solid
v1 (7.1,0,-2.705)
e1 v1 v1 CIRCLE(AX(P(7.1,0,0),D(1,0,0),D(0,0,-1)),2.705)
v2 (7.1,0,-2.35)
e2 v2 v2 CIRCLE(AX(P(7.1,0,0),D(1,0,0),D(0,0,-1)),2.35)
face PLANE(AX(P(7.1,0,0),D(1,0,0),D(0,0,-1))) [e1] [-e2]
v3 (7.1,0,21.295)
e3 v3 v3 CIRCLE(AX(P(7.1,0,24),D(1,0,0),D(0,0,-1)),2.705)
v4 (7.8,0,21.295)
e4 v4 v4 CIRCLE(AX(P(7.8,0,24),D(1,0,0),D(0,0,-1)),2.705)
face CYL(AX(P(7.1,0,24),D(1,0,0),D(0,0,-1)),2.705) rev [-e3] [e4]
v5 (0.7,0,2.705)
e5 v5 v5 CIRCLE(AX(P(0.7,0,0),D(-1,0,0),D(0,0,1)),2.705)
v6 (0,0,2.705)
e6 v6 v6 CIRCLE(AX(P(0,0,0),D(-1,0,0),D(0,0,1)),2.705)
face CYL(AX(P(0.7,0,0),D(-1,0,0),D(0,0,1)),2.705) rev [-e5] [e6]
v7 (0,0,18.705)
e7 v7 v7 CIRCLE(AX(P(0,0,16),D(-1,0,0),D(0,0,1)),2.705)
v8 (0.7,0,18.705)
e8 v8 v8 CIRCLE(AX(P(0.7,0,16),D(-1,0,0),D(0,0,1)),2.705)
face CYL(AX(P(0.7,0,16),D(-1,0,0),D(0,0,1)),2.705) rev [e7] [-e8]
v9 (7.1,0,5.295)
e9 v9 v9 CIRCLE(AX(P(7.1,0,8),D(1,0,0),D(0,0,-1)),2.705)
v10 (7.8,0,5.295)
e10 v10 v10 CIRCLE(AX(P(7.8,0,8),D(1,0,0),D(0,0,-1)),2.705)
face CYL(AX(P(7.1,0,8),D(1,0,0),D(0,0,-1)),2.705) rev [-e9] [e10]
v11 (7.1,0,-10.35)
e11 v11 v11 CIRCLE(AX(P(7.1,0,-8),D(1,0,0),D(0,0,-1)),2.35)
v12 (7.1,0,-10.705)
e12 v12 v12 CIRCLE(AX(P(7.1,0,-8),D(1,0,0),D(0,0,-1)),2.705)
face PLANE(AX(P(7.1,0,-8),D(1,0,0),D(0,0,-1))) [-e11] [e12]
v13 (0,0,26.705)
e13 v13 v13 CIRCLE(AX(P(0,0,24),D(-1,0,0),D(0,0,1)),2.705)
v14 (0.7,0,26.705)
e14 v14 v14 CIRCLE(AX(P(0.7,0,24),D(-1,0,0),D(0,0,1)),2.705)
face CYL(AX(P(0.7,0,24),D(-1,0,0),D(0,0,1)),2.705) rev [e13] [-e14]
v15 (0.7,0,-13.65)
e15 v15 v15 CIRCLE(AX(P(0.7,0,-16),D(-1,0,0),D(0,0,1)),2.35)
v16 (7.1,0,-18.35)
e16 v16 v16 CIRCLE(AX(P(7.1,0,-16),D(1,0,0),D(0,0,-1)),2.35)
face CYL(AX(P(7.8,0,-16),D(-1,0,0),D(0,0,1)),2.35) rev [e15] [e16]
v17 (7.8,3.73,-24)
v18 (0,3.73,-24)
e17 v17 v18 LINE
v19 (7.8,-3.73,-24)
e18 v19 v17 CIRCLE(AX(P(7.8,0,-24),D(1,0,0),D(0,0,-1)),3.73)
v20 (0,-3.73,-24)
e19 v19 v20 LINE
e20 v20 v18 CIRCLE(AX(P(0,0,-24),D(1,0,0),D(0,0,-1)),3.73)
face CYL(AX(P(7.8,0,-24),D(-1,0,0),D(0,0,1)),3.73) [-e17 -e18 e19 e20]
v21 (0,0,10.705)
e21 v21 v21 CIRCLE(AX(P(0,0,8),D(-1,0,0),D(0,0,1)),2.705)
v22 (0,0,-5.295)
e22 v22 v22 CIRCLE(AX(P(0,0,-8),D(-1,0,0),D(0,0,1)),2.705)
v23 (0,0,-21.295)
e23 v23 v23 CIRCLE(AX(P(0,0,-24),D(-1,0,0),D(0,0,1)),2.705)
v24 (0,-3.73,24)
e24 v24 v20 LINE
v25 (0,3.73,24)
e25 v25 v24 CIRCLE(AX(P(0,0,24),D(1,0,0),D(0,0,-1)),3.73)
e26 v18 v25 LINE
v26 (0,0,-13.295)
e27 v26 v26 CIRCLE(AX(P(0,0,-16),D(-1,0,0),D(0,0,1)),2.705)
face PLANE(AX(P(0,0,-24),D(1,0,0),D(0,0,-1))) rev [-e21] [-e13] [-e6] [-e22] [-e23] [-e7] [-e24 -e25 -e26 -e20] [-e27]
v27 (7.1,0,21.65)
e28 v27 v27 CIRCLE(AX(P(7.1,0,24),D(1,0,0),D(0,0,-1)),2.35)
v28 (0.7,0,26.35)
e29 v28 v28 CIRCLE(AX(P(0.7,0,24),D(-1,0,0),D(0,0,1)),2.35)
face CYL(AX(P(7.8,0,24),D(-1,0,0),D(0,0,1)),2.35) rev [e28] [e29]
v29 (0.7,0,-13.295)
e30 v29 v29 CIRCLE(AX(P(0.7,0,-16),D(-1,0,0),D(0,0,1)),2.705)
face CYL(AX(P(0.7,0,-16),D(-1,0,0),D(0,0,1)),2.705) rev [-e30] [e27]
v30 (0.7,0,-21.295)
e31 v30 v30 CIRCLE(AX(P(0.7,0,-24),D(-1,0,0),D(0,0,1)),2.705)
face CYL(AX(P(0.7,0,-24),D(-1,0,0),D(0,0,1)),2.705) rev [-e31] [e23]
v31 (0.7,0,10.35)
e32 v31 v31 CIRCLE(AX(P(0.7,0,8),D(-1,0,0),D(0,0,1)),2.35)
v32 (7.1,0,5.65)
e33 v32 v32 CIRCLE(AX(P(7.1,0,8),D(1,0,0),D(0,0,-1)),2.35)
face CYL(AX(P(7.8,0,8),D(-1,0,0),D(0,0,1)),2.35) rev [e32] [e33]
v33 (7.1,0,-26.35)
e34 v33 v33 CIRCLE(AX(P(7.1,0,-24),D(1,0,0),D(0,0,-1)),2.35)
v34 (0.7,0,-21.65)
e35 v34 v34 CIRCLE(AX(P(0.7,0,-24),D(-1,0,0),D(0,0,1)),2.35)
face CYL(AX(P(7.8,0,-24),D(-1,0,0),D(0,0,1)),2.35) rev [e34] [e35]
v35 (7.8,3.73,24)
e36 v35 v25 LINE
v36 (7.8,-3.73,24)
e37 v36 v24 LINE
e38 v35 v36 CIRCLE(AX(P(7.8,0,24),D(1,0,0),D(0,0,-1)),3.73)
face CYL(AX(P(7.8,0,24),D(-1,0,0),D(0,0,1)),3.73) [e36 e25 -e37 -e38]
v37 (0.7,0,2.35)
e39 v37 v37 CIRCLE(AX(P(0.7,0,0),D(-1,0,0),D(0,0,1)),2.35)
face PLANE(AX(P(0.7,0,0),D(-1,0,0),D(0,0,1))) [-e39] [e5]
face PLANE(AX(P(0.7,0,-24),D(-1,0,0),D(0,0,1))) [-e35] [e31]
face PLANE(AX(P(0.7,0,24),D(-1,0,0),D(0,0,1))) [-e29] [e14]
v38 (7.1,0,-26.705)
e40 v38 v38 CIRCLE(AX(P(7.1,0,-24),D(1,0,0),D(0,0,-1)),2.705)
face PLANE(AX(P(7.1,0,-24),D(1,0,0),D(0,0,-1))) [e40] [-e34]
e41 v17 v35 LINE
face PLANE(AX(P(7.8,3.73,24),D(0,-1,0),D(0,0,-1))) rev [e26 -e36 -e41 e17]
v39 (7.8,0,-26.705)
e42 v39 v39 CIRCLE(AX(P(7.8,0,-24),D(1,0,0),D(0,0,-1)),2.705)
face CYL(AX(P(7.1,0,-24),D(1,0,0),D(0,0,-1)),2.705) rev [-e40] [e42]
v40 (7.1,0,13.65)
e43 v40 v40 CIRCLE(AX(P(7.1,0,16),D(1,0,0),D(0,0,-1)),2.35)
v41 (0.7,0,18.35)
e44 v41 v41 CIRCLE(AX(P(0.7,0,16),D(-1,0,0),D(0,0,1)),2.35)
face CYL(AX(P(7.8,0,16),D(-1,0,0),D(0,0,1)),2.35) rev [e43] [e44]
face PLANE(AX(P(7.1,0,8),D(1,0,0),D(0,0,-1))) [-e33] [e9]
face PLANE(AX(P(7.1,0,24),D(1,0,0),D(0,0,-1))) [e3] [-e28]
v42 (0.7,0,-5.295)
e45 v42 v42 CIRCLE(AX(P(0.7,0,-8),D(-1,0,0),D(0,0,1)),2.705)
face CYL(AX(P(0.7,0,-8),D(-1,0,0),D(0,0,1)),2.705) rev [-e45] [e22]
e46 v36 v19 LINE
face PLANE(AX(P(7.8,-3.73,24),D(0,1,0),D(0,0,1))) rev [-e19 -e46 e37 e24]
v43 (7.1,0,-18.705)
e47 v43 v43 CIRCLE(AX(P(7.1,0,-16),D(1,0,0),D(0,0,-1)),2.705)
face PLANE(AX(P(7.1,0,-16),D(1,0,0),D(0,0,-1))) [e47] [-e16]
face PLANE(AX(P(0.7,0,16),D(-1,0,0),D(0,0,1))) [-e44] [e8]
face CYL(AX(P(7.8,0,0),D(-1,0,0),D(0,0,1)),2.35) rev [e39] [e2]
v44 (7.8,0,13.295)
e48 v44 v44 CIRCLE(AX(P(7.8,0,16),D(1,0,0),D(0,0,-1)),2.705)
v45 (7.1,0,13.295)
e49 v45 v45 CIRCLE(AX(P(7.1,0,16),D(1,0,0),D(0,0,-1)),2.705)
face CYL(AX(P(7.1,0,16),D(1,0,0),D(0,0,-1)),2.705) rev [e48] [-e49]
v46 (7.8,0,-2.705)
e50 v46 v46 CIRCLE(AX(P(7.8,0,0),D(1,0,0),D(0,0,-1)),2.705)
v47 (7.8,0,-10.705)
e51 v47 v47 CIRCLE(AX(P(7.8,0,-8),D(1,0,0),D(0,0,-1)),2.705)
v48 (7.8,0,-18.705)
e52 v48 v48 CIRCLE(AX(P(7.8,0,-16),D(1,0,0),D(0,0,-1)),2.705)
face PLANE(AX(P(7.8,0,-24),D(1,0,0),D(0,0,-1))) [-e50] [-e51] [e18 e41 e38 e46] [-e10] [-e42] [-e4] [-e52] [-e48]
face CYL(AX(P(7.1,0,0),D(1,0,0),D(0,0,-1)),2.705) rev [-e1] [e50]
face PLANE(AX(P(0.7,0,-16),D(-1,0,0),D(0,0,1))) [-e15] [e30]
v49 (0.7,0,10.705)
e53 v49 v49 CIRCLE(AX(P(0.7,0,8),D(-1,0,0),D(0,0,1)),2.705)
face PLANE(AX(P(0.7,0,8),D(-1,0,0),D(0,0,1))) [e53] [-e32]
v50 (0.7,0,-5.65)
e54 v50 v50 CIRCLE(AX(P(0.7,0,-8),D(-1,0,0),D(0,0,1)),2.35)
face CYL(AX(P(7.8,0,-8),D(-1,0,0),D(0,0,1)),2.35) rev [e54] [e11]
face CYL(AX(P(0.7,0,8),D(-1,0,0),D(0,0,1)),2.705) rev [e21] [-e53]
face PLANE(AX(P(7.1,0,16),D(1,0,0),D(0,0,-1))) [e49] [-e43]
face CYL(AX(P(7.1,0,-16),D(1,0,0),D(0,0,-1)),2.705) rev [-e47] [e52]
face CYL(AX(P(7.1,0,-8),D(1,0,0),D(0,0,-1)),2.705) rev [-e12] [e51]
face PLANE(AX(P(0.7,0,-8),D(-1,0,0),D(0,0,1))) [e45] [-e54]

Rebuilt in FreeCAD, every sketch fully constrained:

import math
import FreeCAD as App
import Part
import Sketcher

V = App.Vector

doc = App.newDocument("Part")
body = doc.addObject("PartDesign::Body", "Body")

sketch1 = body.newObject("Sketcher::SketchObject", "Sketch")
sketch1.AttachmentSupport = (doc.getObject("YZ_Plane"), [""])
sketch1.MapMode = "FlatFace"
sketch1.addGeometry([
    Part.LineSegment(V(-3.7, 24, 0), V(-3.7, -24, 0)),
    Part.ArcOfCircle(Part.Circle(V(0, -24, 0), V(0, 0, 1), 3.7), math.radians(180), math.radians(360)),
    Part.LineSegment(V(3.7, -24, 0), V(3.7, 24, 0)),
    Part.ArcOfCircle(Part.Circle(V(0, 24, 0), V(0, 0, 1), 3.7), math.radians(0), math.radians(180)),
    Part.Circle(V(0, 24, 0), V(0, 0, 1), 2.4),
    Part.Circle(V(0, 16, 0), V(0, 0, 1), 2.4),
    Part.Circle(V(0, 8, 0), V(0, 0, 1), 2.4),
    Part.Circle(V(0, 0, 0), V(0, 0, 1), 2.4),
    Part.Circle(V(0, -8, 0), V(0, 0, 1), 2.4),
    Part.Circle(V(0, -16, 0), V(0, 0, 1), 2.4),
    Part.Circle(V(0, -24, 0), V(0, 0, 1), 2.4),
], False)
sketch1.addConstraint([
    Sketcher.Constraint("Tangent", 0, 2, 1, 1),
    Sketcher.Constraint("Tangent", 1, 2, 2, 1),
    Sketcher.Constraint("Tangent", 2, 2, 3, 1),
    Sketcher.Constraint("Tangent", 3, 2, 0, 1),
    Sketcher.Constraint("Vertical", 0),
    Sketcher.Constraint("Vertical", 2),
    Sketcher.Constraint("Coincident", 7, 3, -1, 1),
    Sketcher.Constraint("Coincident", 4, 3, 3, 3),
    Sketcher.Constraint("Coincident", 10, 3, 1, 3),
    Sketcher.Constraint("Equal", 4, 5),
    Sketcher.Constraint("Equal", 5, 6),
    Sketcher.Constraint("Equal", 6, 7),
    Sketcher.Constraint("Equal", 7, 8),
    Sketcher.Constraint("Equal", 8, 9),
    Sketcher.Constraint("Equal", 9, 10),
    Sketcher.Constraint("Symmetric", 1, 3, 3, 3, -1, 1),
    Sketcher.Constraint("Symmetric", 6, 3, 8, 3, -1, 1),
    Sketcher.Constraint("Symmetric", 5, 3, 9, 3, -1, 1),
    Sketcher.Constraint("PointOnObject", 5, 3, -2),
    Sketcher.Constraint("PointOnObject", 6, 3, -2),
    Sketcher.Constraint("Diameter", 4, 4.7),
    Sketcher.Constraint("DistanceY", 0, 2, 0, 1, 48.0),
    Sketcher.Constraint("Radius", 1, 3.73),
    Sketcher.Constraint("DistanceY", -1, 1, 5, 3, 16.0),
    Sketcher.Constraint("DistanceY", -1, 1, 6, 3, 8.0),
])
pad1 = body.newObject("PartDesign::Pad", "Pad")
pad1.Profile = sketch1
pad1.Length = 7.8

sketch2 = body.newObject("Sketcher::SketchObject", "Sketch001")
sketch2.AttachmentSupport = (doc.getObject("YZ_Plane"), [""])
sketch2.MapMode = "FlatFace"
sketch2.addGeometry([
    Part.Circle(V(0, -24, 0), V(0, 0, 1), 2.7),
    Part.Circle(V(0, -16, 0), V(0, 0, 1), 2.7),
    Part.Circle(V(0, -8, 0), V(0, 0, 1), 2.7),
    Part.Circle(V(0, 0, 0), V(0, 0, 1), 2.7),
    Part.Circle(V(0, 8, 0), V(0, 0, 1), 2.7),
    Part.Circle(V(0, 16, 0), V(0, 0, 1), 2.7),
    Part.Circle(V(0, 24, 0), V(0, 0, 1), 2.7),
], False)
sketch2.addConstraint([
    Sketcher.Constraint("Coincident", 3, 3, -1, 1),
    Sketcher.Constraint("Equal", 0, 1),
    Sketcher.Constraint("Equal", 1, 2),
    Sketcher.Constraint("Equal", 2, 3),
    Sketcher.Constraint("Equal", 3, 4),
    Sketcher.Constraint("Equal", 4, 5),
    Sketcher.Constraint("Equal", 5, 6),
    Sketcher.Constraint("Symmetric", 2, 3, 4, 3, -1, 1),
    Sketcher.Constraint("Symmetric", 1, 3, 5, 3, -1, 1),
    Sketcher.Constraint("Symmetric", 0, 3, 6, 3, -1, 1),
    Sketcher.Constraint("PointOnObject", 0, 3, -2),
    Sketcher.Constraint("PointOnObject", 1, 3, -2),
    Sketcher.Constraint("PointOnObject", 2, 3, -2),
    Sketcher.Constraint("Diameter", 0, 5.41),
    Sketcher.Constraint("DistanceY", 0, 3, -1, 1, 24.0),
    Sketcher.Constraint("DistanceY", 1, 3, -1, 1, 16.0),
    Sketcher.Constraint("DistanceY", 2, 3, -1, 1, 8.0),
])
pocket1 = body.newObject("PartDesign::Pocket", "Pocket")
pocket1.Profile = sketch2
pocket1.Length = 0.7
pocket1.Reversed = True

sketch3 = body.newObject("Sketcher::SketchObject", "Sketch002")
sketch3.AttachmentSupport = (doc.getObject("YZ_Plane"), [""])
sketch3.MapMode = "FlatFace"
sketch3.AttachmentOffset = App.Placement(V(0, 0, 7.1), App.Rotation())
sketch3.addGeometry([
    Part.Circle(V(0, 24, 0), V(0, 0, 1), 2.7),
    Part.Circle(V(0, 16, 0), V(0, 0, 1), 2.7),
    Part.Circle(V(0, 8, 0), V(0, 0, 1), 2.7),
    Part.Circle(V(0, 0, 0), V(0, 0, 1), 2.7),
    Part.Circle(V(0, -8, 0), V(0, 0, 1), 2.7),
    Part.Circle(V(0, -16, 0), V(0, 0, 1), 2.7),
    Part.Circle(V(0, -24, 0), V(0, 0, 1), 2.7),
], False)
sketch3.addConstraint([
    Sketcher.Constraint("Coincident", 3, 3, -1, 1),
    Sketcher.Constraint("Equal", 0, 1),
    Sketcher.Constraint("Equal", 1, 2),
    Sketcher.Constraint("Equal", 2, 3),
    Sketcher.Constraint("Equal", 3, 4),
    Sketcher.Constraint("Equal", 4, 5),
    Sketcher.Constraint("Equal", 5, 6),
    Sketcher.Constraint("Symmetric", 2, 3, 4, 3, -1, 1),
    Sketcher.Constraint("Symmetric", 1, 3, 5, 3, -1, 1),
    Sketcher.Constraint("Symmetric", 0, 3, 6, 3, -1, 1),
    Sketcher.Constraint("PointOnObject", 0, 3, -2),
    Sketcher.Constraint("PointOnObject", 1, 3, -2),
    Sketcher.Constraint("PointOnObject", 2, 3, -2),
    Sketcher.Constraint("Diameter", 0, 5.41),
    Sketcher.Constraint("DistanceY", -1, 1, 0, 3, 24.0),
    Sketcher.Constraint("DistanceY", -1, 1, 1, 3, 16.0),
    Sketcher.Constraint("DistanceY", -1, 1, 2, 3, 8.0),
])
pocket2 = body.newObject("PartDesign::Pocket", "Pocket001")
pocket2.Profile = sketch3
pocket2.Length = 0.7
pocket2.Reversed = True

doc.recompute()
